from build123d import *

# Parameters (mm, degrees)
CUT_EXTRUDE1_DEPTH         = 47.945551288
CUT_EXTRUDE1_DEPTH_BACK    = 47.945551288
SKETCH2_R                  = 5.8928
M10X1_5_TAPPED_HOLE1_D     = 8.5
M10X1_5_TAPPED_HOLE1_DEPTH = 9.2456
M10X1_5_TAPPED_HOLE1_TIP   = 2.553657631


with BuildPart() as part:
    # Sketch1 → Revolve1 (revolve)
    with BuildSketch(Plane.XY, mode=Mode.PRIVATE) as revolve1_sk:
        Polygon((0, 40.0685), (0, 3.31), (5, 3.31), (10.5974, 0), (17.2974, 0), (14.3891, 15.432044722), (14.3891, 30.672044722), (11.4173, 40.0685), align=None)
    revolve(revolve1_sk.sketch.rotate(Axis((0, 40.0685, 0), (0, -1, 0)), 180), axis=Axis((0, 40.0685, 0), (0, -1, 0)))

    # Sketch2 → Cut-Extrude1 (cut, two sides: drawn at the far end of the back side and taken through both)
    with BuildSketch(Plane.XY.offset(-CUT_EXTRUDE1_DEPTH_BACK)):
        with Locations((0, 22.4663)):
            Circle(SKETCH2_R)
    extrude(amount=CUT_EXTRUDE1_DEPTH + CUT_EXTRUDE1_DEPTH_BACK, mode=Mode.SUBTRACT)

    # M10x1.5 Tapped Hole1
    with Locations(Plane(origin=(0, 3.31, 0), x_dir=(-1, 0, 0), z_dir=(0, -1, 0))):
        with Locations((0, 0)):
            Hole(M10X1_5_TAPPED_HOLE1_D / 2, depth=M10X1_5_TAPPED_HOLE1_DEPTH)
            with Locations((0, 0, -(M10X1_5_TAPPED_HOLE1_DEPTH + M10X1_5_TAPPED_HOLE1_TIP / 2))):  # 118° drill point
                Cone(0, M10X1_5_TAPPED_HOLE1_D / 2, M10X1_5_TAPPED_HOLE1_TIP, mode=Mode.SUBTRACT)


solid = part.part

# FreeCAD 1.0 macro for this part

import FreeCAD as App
import Part
import Sketcher
from FreeCAD import Vector
Q = App.Units.Quantity


def add_polygon(sketch, points):
    """Adds a closed chain of lines whose ends are joined by coincident constraints."""
    first, n = sketch.GeometryCount, len(points)
    for a, b in zip(points, points[1:] + points[:1]):
        sketch.addGeometry(Part.LineSegment(App.Vector(*a, 0), App.Vector(*b, 0)), False)
    for i in range(n):
        sketch.addConstraint(Sketcher.Constraint("Coincident", first + i, 2, first + (i + 1) % n, 1))

doc = App.newDocument("Part")
body = doc.addObject("PartDesign::Body", "Body")

# Sketch on XY plane
sketch1 = body.newObject("Sketcher::SketchObject", "Sketch")
sketch1.AttachmentSupport = (doc.getObject("XY_Plane"), [""])
sketch1.MapMode = "FlatFace"
add_polygon(sketch1, [(0, 40.0685), (0, 3.31), (5, 3.31), (10.5974, 0), (17.2974, 0), (14.3891, 15.432045), (14.3891, 30.672045), (11.4173, 40.0685)])  # lines 0-7
sketch1.addConstraint(Sketcher.Constraint("Vertical", 0))
sketch1.addConstraint(Sketcher.Constraint("Horizontal", 1))
sketch1.addConstraint(Sketcher.Constraint("Horizontal", 3))
sketch1.addConstraint(Sketcher.Constraint("Vertical", 5))
sketch1.addConstraint(Sketcher.Constraint("Horizontal", 7))
sketch1.addConstraint(Sketcher.Constraint("PointOnObject", 0, 2, -2))
sketch1.addConstraint(Sketcher.Constraint("PointOnObject", 2, 2, -1))
sketch1.addConstraint(Sketcher.Constraint("DistanceY", 5, 1, 5, 2, Q("0.6 in")))
sketch1.addConstraint(Sketcher.Constraint("Distance", 6, Q("0.388 in")))
sketch1.addConstraint(Sketcher.Constraint("DistanceX", 7, 2, 7, 1, Q("0.4495 in")))
sketch1.addConstraint(Sketcher.Constraint("DistanceX", -1, 1, 3, 2, Q("0.681 in")))
sketch1.addConstraint(Sketcher.Constraint("DistanceX", 6, 2, 5, 2, Q("0.117 in")))
sketch1.addConstraint(Sketcher.Constraint("DistanceX", 1, 1, 1, 2, Q("5 mm")))
sketch1.addConstraint(Sketcher.Constraint("DistanceX", 3, 1, 3, 2, Q("6.7 mm")))
sketch1.addConstraint(Sketcher.Constraint("DistanceY", 0, 2, 0, 1, Q("36.7585 mm")))
sketch1.addConstraint(Sketcher.Constraint("DistanceY", -1, 1, 6, 2, Q("1.5775 in")))
revolution = body.newObject("PartDesign::Revolution", "Revolution")
revolution.Profile = sketch1
revolution.ReferenceAxis = (sketch1, ["V_Axis"])
revolution.Angle = 360

# Sketch on XY plane
sketch2 = body.newObject("Sketcher::SketchObject", "Sketch001")
sketch2.AttachmentSupport = (doc.getObject("XY_Plane"), [""])
sketch2.MapMode = "FlatFace"
sketch2.addGeometry(Part.Circle(Vector(0, 22.4663, 0), Vector(0, 0, 1), 5.8928), False)
sketch2.addConstraint(Sketcher.Constraint("PointOnObject", 0, 3, -2))
sketch2.addConstraint(Sketcher.Constraint("Diameter", 0, Q("0.464 in")))
sketch2.addConstraint(Sketcher.Constraint("DistanceY", -1, 1, 0, 3, Q("0.8845 in")))
pocket1 = body.newObject("PartDesign::Pocket", "Pocket")
pocket1.Profile = sketch2
pocket1.Type = "ThroughAll"
pocket1.Midplane = True

# Sketch on XZ plane
sketch3 = body.newObject("Sketcher::SketchObject", "Sketch002")
sketch3.AttachmentSupport = (doc.getObject("XZ_Plane"), [""])
sketch3.MapMode = "FlatFace"
sketch3.AttachmentOffset = App.Placement(Vector(0, 0, -3.31), App.Rotation())
sketch3.addGeometry(Part.Circle(Vector(0, 0, 0), Vector(0, 0, 1), 4.25), False)
sketch3.addConstraint(Sketcher.Constraint("Coincident", 0, 3, -1, 1))
sketch3.addConstraint(Sketcher.Constraint("Diameter", 0, Q("8.5 mm")))
doc.recompute()
hole = body.newObject("PartDesign::Hole", "Hole")
hole.Profile = sketch3
hole.ThreadType = "None"
hole.Diameter = 8.5
hole.DepthType = "Dimension"
hole.Depth = Q("0.364 in")
hole.DrillPoint = "Angled"
hole.DrillPointAngle = 118

doc.recompute()
